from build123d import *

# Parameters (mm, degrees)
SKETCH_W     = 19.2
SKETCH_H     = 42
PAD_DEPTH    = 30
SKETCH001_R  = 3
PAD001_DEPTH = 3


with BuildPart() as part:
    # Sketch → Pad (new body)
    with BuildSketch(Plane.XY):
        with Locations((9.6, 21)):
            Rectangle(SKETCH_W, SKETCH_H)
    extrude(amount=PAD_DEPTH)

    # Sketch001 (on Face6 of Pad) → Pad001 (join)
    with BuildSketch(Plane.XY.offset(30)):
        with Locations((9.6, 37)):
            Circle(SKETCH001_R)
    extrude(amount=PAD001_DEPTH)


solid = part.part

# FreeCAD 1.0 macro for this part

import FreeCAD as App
import Part
import Sketcher

V = App.Vector
Q = App.Units.Quantity

doc = App.newDocument("Part")
params = doc.addObject("Spreadsheet::Sheet", "Params")
for row, (alias, value) in enumerate([
    ("sketch1_height", "42 mm"),
    ("sketch1_width", "19.2 mm"),
    ("pad1_length", "30 mm"),
    ("sketch2_diameter", "6 mm"),
    ("pad2_length", "3 mm"),
], start=1):
    params.set(f"A{row}", alias)
    params.set(f"B{row}", "=" + value)
    params.setAlias(f"B{row}", alias)

body = doc.addObject("PartDesign::Body", "Body")

# Sketch on XY plane
sketch1 = body.newObject("Sketcher::SketchObject", "Sketch")
sketch1.AttachmentSupport = (doc.getObject("XY_Plane"), [""])
sketch1.MapMode = "FlatFace"
sketch1.addGeometry(Part.LineSegment(V(0, 42, 0), V(0, 0, 0)), False)
sketch1.addGeometry(Part.LineSegment(V(0, 0, 0), V(19, 0, 0)), False)
sketch1.addGeometry(Part.LineSegment(V(19, 0, 0), V(19, 42, 0)), False)
sketch1.addGeometry(Part.LineSegment(V(19, 42, 0), V(0, 42, 0)), False)
sketch1.addConstraint(Sketcher.Constraint("Coincident", 0, 2, 1, 1))
sketch1.addConstraint(Sketcher.Constraint("Coincident", 1, 2, 2, 1))
sketch1.addConstraint(Sketcher.Constraint("Coincident", 2, 2, 3, 1))
sketch1.addConstraint(Sketcher.Constraint("Coincident", 3, 2, 0, 1))
sketch1.addConstraint(Sketcher.Constraint("Vertical", 0))
sketch1.addConstraint(Sketcher.Constraint("Horizontal", 1))
sketch1.addConstraint(Sketcher.Constraint("Vertical", 2))
sketch1.addConstraint(Sketcher.Constraint("Horizontal", 3))
sketch1.addConstraint(Sketcher.Constraint("Coincident", 0, 2, -1, 1))
sketch1.addConstraint(Sketcher.Constraint("DistanceY", 0, 2, 0, 1, Q("42 mm")))
sketch1.addConstraint(Sketcher.Constraint("DistanceX", 1, 1, 1, 2, Q("19.2 mm")))
sketch1.setExpression("Constraints[9]", "Params.sketch1_height")
sketch1.setExpression("Constraints[10]", "Params.sketch1_width")
pad1 = body.newObject("PartDesign::Pad", "Pad")
pad1.Profile = sketch1
pad1.setExpression("Length", "Params.pad1_length")

# Sketch on XY plane
sketch2 = body.newObject("Sketcher::SketchObject", "Sketch001")
sketch2.AttachmentSupport = (doc.getObject("XY_Plane"), [""])
sketch2.MapMode = "FlatFace"
sketch2.AttachmentOffset = App.Placement(V(0, 0, 30), App.Rotation())
sketch2.addGeometry(Part.Circle(V(9.6, 37, 0), V(0, 0, 1), 3), False)
sketch2.addConstraint(Sketcher.Constraint("Diameter", 0, Q("6 mm")))
sketch2.addConstraint(Sketcher.Constraint("DistanceY", -1, 1, 0, 3, Q("37 mm")))
sketch2.addConstraint(Sketcher.Constraint("DistanceX", -1, 1, 0, 3, Q("9.6 mm")))
sketch2.setExpression("Constraints[0]", "Params.sketch2_diameter")
pad2 = body.newObject("PartDesign::Pad", "Pad001")
pad2.Profile = sketch2
pad2.setExpression("Length", "Params.pad2_length")

doc.recompute()
